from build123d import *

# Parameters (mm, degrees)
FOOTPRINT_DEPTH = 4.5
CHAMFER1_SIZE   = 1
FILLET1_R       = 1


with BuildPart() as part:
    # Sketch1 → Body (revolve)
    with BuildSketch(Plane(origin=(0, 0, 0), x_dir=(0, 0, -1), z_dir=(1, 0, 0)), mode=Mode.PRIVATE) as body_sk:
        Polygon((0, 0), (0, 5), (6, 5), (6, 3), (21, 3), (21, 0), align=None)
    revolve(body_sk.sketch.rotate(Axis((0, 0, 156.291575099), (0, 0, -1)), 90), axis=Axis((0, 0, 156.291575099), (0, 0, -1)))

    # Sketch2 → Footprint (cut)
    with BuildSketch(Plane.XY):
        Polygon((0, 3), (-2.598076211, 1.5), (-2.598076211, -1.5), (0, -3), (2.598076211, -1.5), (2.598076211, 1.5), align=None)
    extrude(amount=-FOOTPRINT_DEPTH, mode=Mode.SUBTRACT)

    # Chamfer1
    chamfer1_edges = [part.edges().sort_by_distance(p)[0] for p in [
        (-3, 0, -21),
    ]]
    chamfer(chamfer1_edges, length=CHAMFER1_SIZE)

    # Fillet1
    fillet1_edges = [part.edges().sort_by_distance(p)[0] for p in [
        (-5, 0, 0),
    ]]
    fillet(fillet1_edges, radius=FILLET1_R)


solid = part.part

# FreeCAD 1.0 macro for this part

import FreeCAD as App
import Part
import Sketcher

V = App.Vector
Q = App.Units.Quantity


def edges_at(feature, points):
    """Names of the edges that pass closest to the given points."""
    edges = feature.Shape.Edges
    near = lambda p: min(range(len(edges)), key=lambda i: edges[i].distToShape(Part.Vertex(*p))[0])
    return sorted({f"Edge{near(p) + 1}" for p in points})


def add_polygon(sketch, points):
    """Adds a closed chain of lines whose ends are joined by coincident constraints."""
    first, n = sketch.GeometryCount, len(points)
    for a, b in zip(points, points[1:] + points[:1]):
        sketch.addGeometry(Part.LineSegment(App.Vector(*a, 0), App.Vector(*b, 0)), False)
    for i in range(n):
        sketch.addConstraint(Sketcher.Constraint("Coincident", first + i, 2, first + (i + 1) % n, 1))

doc = App.newDocument("Part")
body = doc.addObject("PartDesign::Body", "Body")

# Sketch on YZ plane
sketch1 = body.newObject("Sketcher::SketchObject", "Sketch")
sketch1.AttachmentSupport = (doc.getObject("YZ_Plane"), [""])
sketch1.MapMode = "FlatFace"
add_polygon(sketch1, [(5, 0), (0, 0), (0, -21), (3, -21), (3, -6), (5, -6)])  # lines 0-5
sketch1.addConstraint([
    Sketcher.Constraint("Horizontal", 0),
    Sketcher.Constraint("Vertical", 1),
    Sketcher.Constraint("Horizontal", 2),
    Sketcher.Constraint("Vertical", 3),
    Sketcher.Constraint("Horizontal", 4),
    Sketcher.Constraint("Vertical", 5),
    Sketcher.Constraint("Coincident", 0, 2, -1, 1),
    Sketcher.Constraint("DistanceX", 0, 2, 0, 1, 5.0),
    Sketcher.Constraint("DistanceX", 2, 1, 2, 2, 3.0),
    Sketcher.Constraint("DistanceY", 1, 2, 1, 1, 21.0),
    Sketcher.Constraint("DistanceY", 3, 1, 3, 2, 15.0),
])
revolution = body.newObject("PartDesign::Revolution", "Revolution")
revolution.Profile = sketch1
revolution.ReferenceAxis = (sketch1, ["V_Axis"])
revolution.Angle = 360

# Sketch on XY plane
sketch2 = body.newObject("Sketcher::SketchObject", "Sketch001")
sketch2.AttachmentSupport = (doc.getObject("XY_Plane"), [""])
sketch2.MapMode = "FlatFace"
add_polygon(sketch2, [(0, 3), (-2.6, 1.5), (-2.6, -1.5), (0, -3), (2.6, -1.5), (2.6, 1.5)])  # lines 0-5
sketch2.addConstraint([
    Sketcher.Constraint("Vertical", 1),
    Sketcher.Constraint("Vertical", 4),
    Sketcher.Constraint("Symmetric", 0, 2, 3, 2, -1, 1),
    Sketcher.Constraint("Symmetric", 2, 2, 5, 2, -1, 1),
    Sketcher.Constraint("PointOnObject", 2, 2, -2),
    Sketcher.Constraint("Parallel", 2, 5),
    Sketcher.Constraint("Horizontal", 1, 2, 3, 2),
    Sketcher.Constraint("DistanceY", 1, 2, 1, 1, 3.0),
    Sketcher.Constraint("Angle", 0, Q("-150 deg")),
    Sketcher.Constraint("Distance", 0, 3.0),
])
pocket1 = body.newObject("PartDesign::Pocket", "Pocket")
pocket1.Profile = sketch2
pocket1.Length = 4.5
doc.recompute()

chamfer = body.newObject("PartDesign::Chamfer", "Chamfer")
chamfer.Base = (pocket1, edges_at(pocket1, [(-3, 0, -21)]))
chamfer.Size = 1
doc.recompute()

fillet = body.newObject("PartDesign::Fillet", "Fillet")
fillet.Base = (chamfer, edges_at(chamfer, [(-5, 0, 0)]))
fillet.Radius = 1

doc.recompute()
